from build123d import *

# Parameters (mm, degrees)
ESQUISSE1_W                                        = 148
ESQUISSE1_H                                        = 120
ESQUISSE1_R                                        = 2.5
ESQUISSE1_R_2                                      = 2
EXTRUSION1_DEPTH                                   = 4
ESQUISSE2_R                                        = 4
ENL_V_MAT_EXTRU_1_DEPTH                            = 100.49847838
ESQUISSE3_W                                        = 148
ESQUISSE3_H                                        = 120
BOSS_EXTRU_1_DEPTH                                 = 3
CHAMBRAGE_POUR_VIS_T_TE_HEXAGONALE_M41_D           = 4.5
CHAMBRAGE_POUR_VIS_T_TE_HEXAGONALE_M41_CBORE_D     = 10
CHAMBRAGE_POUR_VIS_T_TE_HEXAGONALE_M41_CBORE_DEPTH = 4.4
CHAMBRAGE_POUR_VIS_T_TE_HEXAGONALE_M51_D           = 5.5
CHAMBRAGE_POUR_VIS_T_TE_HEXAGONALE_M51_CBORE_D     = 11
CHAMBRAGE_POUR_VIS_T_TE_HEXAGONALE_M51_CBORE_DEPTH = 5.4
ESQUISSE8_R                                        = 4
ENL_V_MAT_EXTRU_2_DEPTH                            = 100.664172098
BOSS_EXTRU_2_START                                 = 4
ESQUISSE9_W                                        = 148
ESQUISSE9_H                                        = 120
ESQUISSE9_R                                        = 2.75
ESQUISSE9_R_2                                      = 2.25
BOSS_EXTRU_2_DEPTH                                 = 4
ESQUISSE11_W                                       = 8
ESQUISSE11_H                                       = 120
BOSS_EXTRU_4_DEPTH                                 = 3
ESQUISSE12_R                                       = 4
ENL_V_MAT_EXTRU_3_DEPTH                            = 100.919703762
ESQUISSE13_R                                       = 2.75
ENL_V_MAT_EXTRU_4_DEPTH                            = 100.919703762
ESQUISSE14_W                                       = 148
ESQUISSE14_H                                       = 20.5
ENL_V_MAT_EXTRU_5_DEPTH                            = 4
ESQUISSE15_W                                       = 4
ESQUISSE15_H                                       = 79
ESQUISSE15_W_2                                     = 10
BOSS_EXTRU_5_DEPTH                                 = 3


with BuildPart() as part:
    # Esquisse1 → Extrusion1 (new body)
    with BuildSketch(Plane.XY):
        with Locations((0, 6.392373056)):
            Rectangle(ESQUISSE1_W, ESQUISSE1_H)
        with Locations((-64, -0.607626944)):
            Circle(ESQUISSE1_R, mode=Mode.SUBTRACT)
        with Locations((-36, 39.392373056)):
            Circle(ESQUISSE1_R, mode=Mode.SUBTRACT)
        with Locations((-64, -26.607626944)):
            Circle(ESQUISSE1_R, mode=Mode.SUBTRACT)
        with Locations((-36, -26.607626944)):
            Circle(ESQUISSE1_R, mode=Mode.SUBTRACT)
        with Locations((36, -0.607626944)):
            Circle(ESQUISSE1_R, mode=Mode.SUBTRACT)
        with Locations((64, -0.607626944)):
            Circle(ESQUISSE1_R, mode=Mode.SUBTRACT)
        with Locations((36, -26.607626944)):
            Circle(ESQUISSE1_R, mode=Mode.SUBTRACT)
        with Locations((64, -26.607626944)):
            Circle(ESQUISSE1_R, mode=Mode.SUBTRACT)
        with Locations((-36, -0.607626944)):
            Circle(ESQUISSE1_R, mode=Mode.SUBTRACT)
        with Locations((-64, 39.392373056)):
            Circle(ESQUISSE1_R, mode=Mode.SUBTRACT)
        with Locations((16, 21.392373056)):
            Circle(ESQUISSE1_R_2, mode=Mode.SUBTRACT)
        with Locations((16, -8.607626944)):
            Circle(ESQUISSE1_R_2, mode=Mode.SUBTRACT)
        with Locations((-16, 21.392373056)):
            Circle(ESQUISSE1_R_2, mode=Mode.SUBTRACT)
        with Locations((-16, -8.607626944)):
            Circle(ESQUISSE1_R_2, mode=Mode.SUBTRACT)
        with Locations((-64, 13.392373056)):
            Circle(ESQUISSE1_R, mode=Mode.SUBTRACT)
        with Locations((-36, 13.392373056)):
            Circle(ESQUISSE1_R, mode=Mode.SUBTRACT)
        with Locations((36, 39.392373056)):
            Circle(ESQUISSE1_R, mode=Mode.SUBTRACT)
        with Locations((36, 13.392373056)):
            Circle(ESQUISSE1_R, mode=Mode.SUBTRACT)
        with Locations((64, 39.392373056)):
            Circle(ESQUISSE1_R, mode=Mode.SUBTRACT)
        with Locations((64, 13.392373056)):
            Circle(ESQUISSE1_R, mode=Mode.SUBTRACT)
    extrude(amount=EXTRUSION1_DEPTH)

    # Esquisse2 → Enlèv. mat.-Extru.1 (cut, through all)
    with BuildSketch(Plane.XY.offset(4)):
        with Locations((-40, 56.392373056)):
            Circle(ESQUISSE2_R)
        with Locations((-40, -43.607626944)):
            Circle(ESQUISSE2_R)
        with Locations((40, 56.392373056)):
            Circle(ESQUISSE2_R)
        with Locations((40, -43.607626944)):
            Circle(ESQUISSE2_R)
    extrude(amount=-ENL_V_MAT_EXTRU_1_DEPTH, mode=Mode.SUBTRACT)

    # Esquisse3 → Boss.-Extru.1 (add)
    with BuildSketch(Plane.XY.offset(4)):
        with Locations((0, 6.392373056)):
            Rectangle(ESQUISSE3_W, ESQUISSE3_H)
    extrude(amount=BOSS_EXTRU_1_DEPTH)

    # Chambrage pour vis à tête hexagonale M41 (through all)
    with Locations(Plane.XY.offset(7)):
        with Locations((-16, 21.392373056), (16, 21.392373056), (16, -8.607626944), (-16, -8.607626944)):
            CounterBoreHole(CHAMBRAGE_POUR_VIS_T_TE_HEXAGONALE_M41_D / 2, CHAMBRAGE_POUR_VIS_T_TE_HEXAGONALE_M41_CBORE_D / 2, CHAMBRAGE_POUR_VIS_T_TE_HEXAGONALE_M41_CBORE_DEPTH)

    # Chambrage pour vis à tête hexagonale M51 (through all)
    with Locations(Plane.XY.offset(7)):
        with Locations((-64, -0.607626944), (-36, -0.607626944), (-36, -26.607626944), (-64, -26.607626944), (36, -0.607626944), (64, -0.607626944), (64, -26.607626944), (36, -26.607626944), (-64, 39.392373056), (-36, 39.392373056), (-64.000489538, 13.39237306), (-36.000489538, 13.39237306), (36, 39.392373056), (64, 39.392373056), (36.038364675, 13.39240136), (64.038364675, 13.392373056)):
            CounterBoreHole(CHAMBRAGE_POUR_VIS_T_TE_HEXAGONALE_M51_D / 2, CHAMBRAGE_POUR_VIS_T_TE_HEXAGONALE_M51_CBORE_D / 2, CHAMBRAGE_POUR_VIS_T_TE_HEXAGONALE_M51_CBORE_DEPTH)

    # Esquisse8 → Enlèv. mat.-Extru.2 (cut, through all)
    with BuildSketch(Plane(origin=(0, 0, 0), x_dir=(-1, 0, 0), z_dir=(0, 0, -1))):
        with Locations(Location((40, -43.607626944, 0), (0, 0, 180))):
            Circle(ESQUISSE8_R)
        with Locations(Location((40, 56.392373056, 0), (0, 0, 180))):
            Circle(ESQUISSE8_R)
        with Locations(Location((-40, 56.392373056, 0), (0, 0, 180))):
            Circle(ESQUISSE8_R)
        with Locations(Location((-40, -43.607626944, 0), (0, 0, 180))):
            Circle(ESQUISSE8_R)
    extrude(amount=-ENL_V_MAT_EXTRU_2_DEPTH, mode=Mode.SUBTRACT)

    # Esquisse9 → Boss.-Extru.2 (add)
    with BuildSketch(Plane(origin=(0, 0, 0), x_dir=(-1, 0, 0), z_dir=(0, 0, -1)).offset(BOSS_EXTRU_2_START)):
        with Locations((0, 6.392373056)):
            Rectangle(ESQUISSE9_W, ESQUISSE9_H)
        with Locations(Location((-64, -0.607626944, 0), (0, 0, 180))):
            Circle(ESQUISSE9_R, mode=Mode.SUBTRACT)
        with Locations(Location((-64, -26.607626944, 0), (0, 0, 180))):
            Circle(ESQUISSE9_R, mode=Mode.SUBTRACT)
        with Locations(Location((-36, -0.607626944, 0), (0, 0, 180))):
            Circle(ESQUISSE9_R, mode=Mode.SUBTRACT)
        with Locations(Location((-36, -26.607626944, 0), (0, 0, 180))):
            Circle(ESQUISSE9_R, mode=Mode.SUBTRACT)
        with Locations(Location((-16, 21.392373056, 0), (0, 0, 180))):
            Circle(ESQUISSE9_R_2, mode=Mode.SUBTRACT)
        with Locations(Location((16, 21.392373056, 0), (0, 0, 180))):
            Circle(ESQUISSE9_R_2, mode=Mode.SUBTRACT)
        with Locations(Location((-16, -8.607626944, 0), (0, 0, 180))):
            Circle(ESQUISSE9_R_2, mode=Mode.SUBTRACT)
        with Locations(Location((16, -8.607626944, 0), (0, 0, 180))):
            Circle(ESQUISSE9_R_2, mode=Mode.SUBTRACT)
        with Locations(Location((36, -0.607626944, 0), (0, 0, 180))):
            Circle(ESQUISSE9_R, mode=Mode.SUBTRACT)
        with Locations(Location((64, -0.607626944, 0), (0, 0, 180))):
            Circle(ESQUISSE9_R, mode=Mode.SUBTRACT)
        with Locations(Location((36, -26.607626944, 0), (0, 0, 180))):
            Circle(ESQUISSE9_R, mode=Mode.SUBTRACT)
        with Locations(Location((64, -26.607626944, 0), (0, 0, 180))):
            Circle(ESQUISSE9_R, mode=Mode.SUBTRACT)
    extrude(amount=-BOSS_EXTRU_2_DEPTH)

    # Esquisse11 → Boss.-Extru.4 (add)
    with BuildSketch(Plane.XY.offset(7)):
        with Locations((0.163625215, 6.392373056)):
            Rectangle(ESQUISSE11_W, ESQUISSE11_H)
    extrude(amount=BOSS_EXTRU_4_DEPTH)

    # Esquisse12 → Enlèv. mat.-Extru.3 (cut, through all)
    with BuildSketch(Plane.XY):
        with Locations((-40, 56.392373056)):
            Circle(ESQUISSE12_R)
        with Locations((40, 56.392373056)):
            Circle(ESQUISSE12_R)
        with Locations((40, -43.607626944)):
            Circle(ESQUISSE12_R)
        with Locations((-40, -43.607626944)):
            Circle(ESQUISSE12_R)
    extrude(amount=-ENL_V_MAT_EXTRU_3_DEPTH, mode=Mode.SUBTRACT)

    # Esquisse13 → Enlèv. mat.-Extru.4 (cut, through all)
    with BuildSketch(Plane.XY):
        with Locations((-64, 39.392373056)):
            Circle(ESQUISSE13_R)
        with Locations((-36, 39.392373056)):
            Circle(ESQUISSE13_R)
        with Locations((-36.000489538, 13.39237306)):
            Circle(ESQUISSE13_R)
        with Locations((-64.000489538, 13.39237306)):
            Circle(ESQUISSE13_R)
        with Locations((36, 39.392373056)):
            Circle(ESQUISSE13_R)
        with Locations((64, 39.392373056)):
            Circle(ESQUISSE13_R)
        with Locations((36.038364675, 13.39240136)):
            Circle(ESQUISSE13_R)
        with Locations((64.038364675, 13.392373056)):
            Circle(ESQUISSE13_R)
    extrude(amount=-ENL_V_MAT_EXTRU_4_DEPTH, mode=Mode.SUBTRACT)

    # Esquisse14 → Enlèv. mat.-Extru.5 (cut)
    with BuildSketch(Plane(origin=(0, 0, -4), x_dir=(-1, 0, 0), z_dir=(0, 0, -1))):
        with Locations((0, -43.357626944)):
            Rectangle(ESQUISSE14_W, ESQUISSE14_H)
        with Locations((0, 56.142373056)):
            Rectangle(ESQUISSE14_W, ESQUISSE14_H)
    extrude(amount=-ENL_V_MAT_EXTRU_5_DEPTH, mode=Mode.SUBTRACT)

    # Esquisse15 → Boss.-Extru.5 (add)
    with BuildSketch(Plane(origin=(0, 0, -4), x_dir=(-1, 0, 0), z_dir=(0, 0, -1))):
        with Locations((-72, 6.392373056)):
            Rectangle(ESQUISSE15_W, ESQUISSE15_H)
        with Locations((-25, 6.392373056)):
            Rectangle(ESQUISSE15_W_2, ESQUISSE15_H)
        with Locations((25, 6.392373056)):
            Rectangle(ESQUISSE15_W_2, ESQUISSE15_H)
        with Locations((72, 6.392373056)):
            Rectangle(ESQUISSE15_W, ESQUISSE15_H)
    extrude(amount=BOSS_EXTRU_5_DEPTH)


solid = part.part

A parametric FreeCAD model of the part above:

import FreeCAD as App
import Part
import Sketcher
from FreeCAD import Vector
Q = App.Units.Quantity

doc = App.newDocument("Part")
body = doc.addObject("PartDesign::Body", "Body")

sketch1 = doc.addObject("Sketcher::SketchObject", "Sketch")
body.addObject(sketch1)
sketch1.AttachmentSupport = (doc.XY_Plane, [""])
sketch1.MapMode = "FlatFace"
sketch1.addGeometry(Part.LineSegment(Vector(-74, 66.4, 0), Vector(-74, -53.6, 0)), False)
sketch1.addGeometry(Part.LineSegment(Vector(-74, -53.6, 0), Vector(74, -53.6, 0)), False)
sketch1.addGeometry(Part.LineSegment(Vector(74, -53.6, 0), Vector(74, 66.4, 0)), False)
sketch1.addGeometry(Part.LineSegment(Vector(74, 66.4, 0), Vector(-74, 66.4, 0)), False)
sketch1.addGeometry(Part.Circle(Vector(-64, -26.6, 0), Vector(0, 0, 1), 2.5), False)
sketch1.addGeometry(Part.Circle(Vector(-36, -26.6, 0), Vector(0, 0, 1), 2.5), False)
sketch1.addGeometry(Part.Circle(Vector(-64, -0.6, 0), Vector(0, 0, 1), 2.5), False)
sketch1.addGeometry(Part.Circle(Vector(-36, -0.6, 0), Vector(0, 0, 1), 2.5), False)
sketch1.addGeometry(Part.Circle(Vector(-16, -8.6, 0), Vector(0, 0, 1), 2), False)
sketch1.addGeometry(Part.Circle(Vector(36, -26.6, 0), Vector(0, 0, 1), 2.5), False)
sketch1.addGeometry(Part.Circle(Vector(64, -26.6, 0), Vector(0, 0, 1), 2.5), False)
sketch1.addGeometry(Part.Circle(Vector(16, -8.6, 0), Vector(0, 0, 1), 2), False)
sketch1.addGeometry(Part.Circle(Vector(36, -0.6, 0), Vector(0, 0, 1), 2.5), False)
sketch1.addGeometry(Part.Circle(Vector(64, -0.6, 0), Vector(0, 0, 1), 2.5), False)
sketch1.addGeometry(Part.Circle(Vector(-64, 13.4, 0), Vector(0, 0, 1), 2.5), False)
sketch1.addGeometry(Part.Circle(Vector(-36, 13.4, 0), Vector(0, 0, 1), 2.5), False)
sketch1.addGeometry(Part.Circle(Vector(-16, 21.4, 0), Vector(0, 0, 1), 2), False)
sketch1.addGeometry(Part.Circle(Vector(-64, 39.4, 0), Vector(0, 0, 1), 2.5), False)
sketch1.addGeometry(Part.Circle(Vector(-36, 39.4, 0), Vector(0, 0, 1), 2.5), False)
sketch1.addGeometry(Part.Circle(Vector(16, 21.4, 0), Vector(0, 0, 1), 2), False)
sketch1.addGeometry(Part.Circle(Vector(36, 13.4, 0), Vector(0, 0, 1), 2.5), False)
sketch1.addGeometry(Part.Circle(Vector(64, 13.4, 0), Vector(0, 0, 1), 2.5), False)
sketch1.addGeometry(Part.Circle(Vector(36, 39.4, 0), Vector(0, 0, 1), 2.5), False)
sketch1.addGeometry(Part.Circle(Vector(64, 39.4, 0), Vector(0, 0, 1), 2.5), False)
sketch1.addConstraint(Sketcher.Constraint("Coincident", 0, 2, 1, 1))
sketch1.addConstraint(Sketcher.Constraint("Coincident", 1, 2, 2, 1))
sketch1.addConstraint(Sketcher.Constraint("Coincident", 2, 2, 3, 1))
sketch1.addConstraint(Sketcher.Constraint("Coincident", 3, 2, 0, 1))
sketch1.addConstraint(Sketcher.Constraint("Vertical", 0))
sketch1.addConstraint(Sketcher.Constraint("Horizontal", 1))
sketch1.addConstraint(Sketcher.Constraint("Vertical", 2))
sketch1.addConstraint(Sketcher.Constraint("Horizontal", 3))
sketch1.addConstraint(Sketcher.Constraint("Equal", 4, 5))
sketch1.addConstraint(Sketcher.Constraint("Equal", 5, 6))
sketch1.addConstraint(Sketcher.Constraint("Equal", 6, 7))
sketch1.addConstraint(Sketcher.Constraint("Equal", 7, 9))
sketch1.addConstraint(Sketcher.Constraint("Equal", 9, 10))
sketch1.addConstraint(Sketcher.Constraint("Equal", 8, 11))
sketch1.addConstraint(Sketcher.Constraint("Equal", 10, 12))
sketch1.addConstraint(Sketcher.Constraint("Equal", 12, 13))
sketch1.addConstraint(Sketcher.Constraint("Equal", 13, 14))
sketch1.addConstraint(Sketcher.Constraint("Equal", 14, 15))
sketch1.addConstraint(Sketcher.Constraint("Equal", 11, 16))
sketch1.addConstraint(Sketcher.Constraint("Equal", 15, 17))
sketch1.addConstraint(Sketcher.Constraint("Equal", 17, 18))
sketch1.addConstraint(Sketcher.Constraint("Equal", 16, 19))
sketch1.addConstraint(Sketcher.Constraint("Equal", 18, 20))
sketch1.addConstraint(Sketcher.Constraint("Equal", 20, 21))
sketch1.addConstraint(Sketcher.Constraint("Equal", 21, 22))
sketch1.addConstraint(Sketcher.Constraint("Equal", 22, 23))
sketch1.addConstraint(Sketcher.Constraint("Symmetric", 5, 3, 9, 3, -2))
sketch1.addConstraint(Sketcher.Constraint("Symmetric", 4, 3, 10, 3, -2))
sketch1.addConstraint(Sketcher.Constraint("Symmetric", 8, 3, 11, 3, -2))
sketch1.addConstraint(Sketcher.Constraint("Symmetric", 7, 3, 12, 3, -2))
sketch1.addConstraint(Sketcher.Constraint("Symmetric", 6, 3, 13, 3, -2))
sketch1.addConstraint(Sketcher.Constraint("Symmetric", 16, 3, 19, 3, -2))
sketch1.addConstraint(Sketcher.Constraint("Symmetric", 15, 3, 20, 3, -2))
sketch1.addConstraint(Sketcher.Constraint("Symmetric", 14, 3, 21, 3, -2))
sketch1.addConstraint(Sketcher.Constraint("Symmetric", 18, 3, 22, 3, -2))
sketch1.addConstraint(Sketcher.Constraint("Symmetric", 17, 3, 23, 3, -2))
sketch1.addConstraint(Sketcher.Constraint("Horizontal", 4, 3, 5, 3))
sketch1.addConstraint(Sketcher.Constraint("Horizontal", 6, 3, 7, 3))
sketch1.addConstraint(Sketcher.Constraint("Horizontal", 14, 3, 15, 3))
sketch1.addConstraint(Sketcher.Constraint("Horizontal", 17, 3, 18, 3))
sketch1.addConstraint(Sketcher.Constraint("Vertical", 4, 3, 6, 3))
sketch1.addConstraint(Sketcher.Constraint("Vertical", 5, 3, 7, 3))
sketch1.addConstraint(Sketcher.Constraint("Vertical", 6, 3, 14, 3))
sketch1.addConstraint(Sketcher.Constraint("Vertical", 7, 3, 15, 3))
sketch1.addConstraint(Sketcher.Constraint("Vertical", 8, 3, 16, 3))
sketch1.addConstraint(Sketcher.Constraint("Vertical", 14, 3, 17, 3))
sketch1.addConstraint(Sketcher.Constraint("Vertical", 15, 3, 18, 3))
sketch1.addConstraint(Sketcher.Constraint("Diameter", 4, Q("5 mm")))
sketch1.addConstraint(Sketcher.Constraint("Diameter", 8, Q("4 mm")))
sketch1.addConstraint(Sketcher.Constraint("DistanceX", 1, 1, 1, 2, Q("148 mm")))
sketch1.addConstraint(Sketcher.Constraint("DistanceY", 0, 2, 0, 1, Q("120 mm")))
sketch1.addConstraint(Sketcher.Constraint("DistanceX", 4, 3, -1, 1, Q("64 mm")))
sketch1.addConstraint(Sketcher.Constraint("DistanceX", 5, 3, -1, 1, Q("36 mm")))
sketch1.addConstraint(Sketcher.Constraint("DistanceX", 8, 3, -1, 1, Q("16 mm")))
sketch1.addConstraint(Sketcher.Constraint("DistanceX", 0, 2, -1, 1, Q("74 mm")))
sketch1.addConstraint(Sketcher.Constraint("DistanceY", 4, 3, 6, 3, Q("26 mm")))
sketch1.addConstraint(Sketcher.Constraint("DistanceY", 8, 3, 7, 3, Q("8 mm")))
sketch1.addConstraint(Sketcher.Constraint("DistanceY", 6, 3, 14, 3, Q("14 mm")))
sketch1.addConstraint(Sketcher.Constraint("DistanceY", 15, 3, 16, 3, Q("8 mm")))
sketch1.addConstraint(Sketcher.Constraint("DistanceY", 14, 3, 17, 3, Q("26 mm")))
sketch1.addConstraint(Sketcher.Constraint("DistanceY", 0, 2, 4, 3, Q("27 mm")))
sketch1.addConstraint(Sketcher.Constraint("DistanceY", 4, 3, -1, 1, Q("26.607627 mm")))
pad1 = doc.addObject("PartDesign::Pad", "Pad")
body.addObject(pad1)
pad1.Profile = sketch1
pad1.Length = 4

sketch2 = doc.addObject("Sketcher::SketchObject", "Sketch001")
body.addObject(sketch2)
sketch2.AttachmentSupport = (doc.XY_Plane, [""])
sketch2.MapMode = "FlatFace"
sketch2.AttachmentOffset = App.Placement(Vector(0, 0, 4), App.Rotation())
sketch2.addGeometry(Part.Circle(Vector(-40, 56.4, 0), Vector(0, 0, 1), 4), False)
sketch2.addGeometry(Part.Circle(Vector(-40, -43.6, 0), Vector(0, 0, 1), 4), False)
sketch2.addGeometry(Part.Circle(Vector(40, 56.4, 0), Vector(0, 0, 1), 4), False)
sketch2.addGeometry(Part.Circle(Vector(40, -43.6, 0), Vector(0, 0, 1), 4), False)
sketch2.addConstraint(Sketcher.Constraint("Equal", 0, 1))
sketch2.addConstraint(Sketcher.Constraint("Equal", 1, 2))
sketch2.addConstraint(Sketcher.Constraint("Equal", 2, 3))
sketch2.addConstraint(Sketcher.Constraint("Symmetric", 0, 3, 2, 3, -2))
sketch2.addConstraint(Sketcher.Constraint("Symmetric", 1, 3, 3, 3, -2))
sketch2.addConstraint(Sketcher.Constraint("Vertical", 0, 3, 1, 3))
sketch2.addConstraint(Sketcher.Constraint("Diameter", 0, Q("8 mm")))
sketch2.addConstraint(Sketcher.Constraint("DistanceX", 0, 3, -1, 1, Q("40 mm")))
sketch2.addConstraint(Sketcher.Constraint("DistanceY", 1, 3, 0, 3, Q("100 mm")))
sketch2.addConstraint(Sketcher.Constraint("DistanceY", -1, 1, 0, 3, Q("56.392373 mm")))
pocket1 = doc.addObject("PartDesign::Pocket", "Pocket")
body.addObject(pocket1)
pocket1.Profile = sketch2
pocket1.Type = "ThroughAll"

sketch3 = doc.addObject("Sketcher::SketchObject", "Sketch002")
body.addObject(sketch3)
sketch3.AttachmentSupport = (doc.XY_Plane, [""])
sketch3.MapMode = "FlatFace"
sketch3.AttachmentOffset = App.Placement(Vector(0, 0, 4), App.Rotation())
sketch3.addGeometry(Part.LineSegment(Vector(-74, 66, 0), Vector(-74, -54, 0)), False)
sketch3.addGeometry(Part.LineSegment(Vector(-74, -54, 0), Vector(74, -54, 0)), False)
sketch3.addGeometry(Part.LineSegment(Vector(74, -54, 0), Vector(74, 66, 0)), False)
sketch3.addGeometry(Part.LineSegment(Vector(74, 66, 0), Vector(-74, 66, 0)), False)
sketch3.addConstraint(Sketcher.Constraint("Coincident", 0, 2, 1, 1))
sketch3.addConstraint(Sketcher.Constraint("Coincident", 1, 2, 2, 1))
sketch3.addConstraint(Sketcher.Constraint("Coincident", 2, 2, 3, 1))
sketch3.addConstraint(Sketcher.Constraint("Coincident", 3, 2, 0, 1))
sketch3.addConstraint(Sketcher.Constraint("Vertical", 0))
sketch3.addConstraint(Sketcher.Constraint("Horizontal", 1))
sketch3.addConstraint(Sketcher.Constraint("Vertical", 2))
sketch3.addConstraint(Sketcher.Constraint("Horizontal", 3))
sketch3.addConstraint(Sketcher.Constraint("DistanceX", 1, 1, 1, 2, Q("148 mm")))
sketch3.addConstraint(Sketcher.Constraint("DistanceY", 0, 2, 0, 1, Q("120 mm")))
sketch3.addConstraint(Sketcher.Constraint("DistanceX", 0, 2, -1, 1, Q("74 mm")))
sketch3.addConstraint(Sketcher.Constraint("DistanceY", 0, 2, -1, 1, Q("53.607627 mm")))
pad2 = doc.addObject("PartDesign::Pad", "Pad001")
body.addObject(pad2)
pad2.Profile = sketch3
pad2.Length = 3

sketch4 = doc.addObject("Sketcher::SketchObject", "Sketch003")
body.addObject(sketch4)
sketch4.AttachmentSupport = (doc.XY_Plane, [""])
sketch4.MapMode = "FlatFace"
sketch4.AttachmentOffset = App.Placement(Vector(0, 0, 7), App.Rotation())
sketch4.addGeometry(Part.Circle(Vector(-16, 21.4, 0), Vector(0, 0, 1), 2.2), False)
sketch4.addGeometry(Part.Circle(Vector(16, 21.4, 0), Vector(0, 0, 1), 2.2), False)
sketch4.addGeometry(Part.Circle(Vector(16, -8.6, 0), Vector(0, 0, 1), 2.2), False)
sketch4.addGeometry(Part.Circle(Vector(-16, -8.6, 0), Vector(0, 0, 1), 2.2), False)
sketch4.addConstraint(Sketcher.Constraint("Equal", 0, 1))
sketch4.addConstraint(Sketcher.Constraint("Equal", 1, 2))
sketch4.addConstraint(Sketcher.Constraint("Equal", 2, 3))
sketch4.addConstraint(Sketcher.Constraint("Symmetric", 0, 3, 1, 3, -2))
sketch4.addConstraint(Sketcher.Constraint("Symmetric", 2, 3, 3, 3, -2))
sketch4.addConstraint(Sketcher.Constraint("Vertical", 1, 3, 2, 3))
sketch4.addConstraint(Sketcher.Constraint("Diameter", 0, Q("4.5 mm")))
sketch4.addConstraint(Sketcher.Constraint("DistanceX", 0, 3, -1, 1, Q("16 mm")))
sketch4.addConstraint(Sketcher.Constraint("DistanceY", 2, 3, 1, 3, Q("30 mm")))
sketch4.addConstraint(Sketcher.Constraint("DistanceY", -1, 1, 0, 3, Q("21.392373 mm")))
doc.recompute()
hole = doc.addObject("PartDesign::Hole", "Hole")
body.addObject(hole)
hole.Profile = sketch4
hole.ThreadType = "None"
hole.Diameter = 4.5
hole.DepthType = "ThroughAll"
hole.HoleCutType = "Counterbore"
hole.HoleCutDiameter = 10
hole.HoleCutDepth = 4.4

sketch5 = doc.addObject("Sketcher::SketchObject", "Sketch004")
body.addObject(sketch5)
sketch5.AttachmentSupport = (doc.XY_Plane, [""])
sketch5.MapMode = "FlatFace"
sketch5.AttachmentOffset = App.Placement(Vector(0, 0, 7), App.Rotation())
sketch5.addGeometry(Part.Circle(Vector(-64, -0.6, 0), Vector(0, 0, 1), 2.8), False)
sketch5.addGeometry(Part.Circle(Vector(-36, -0.6, 0), Vector(0, 0, 1), 2.8), False)
sketch5.addGeometry(Part.Circle(Vector(-36, -26.6, 0), Vector(0, 0, 1), 2.8), False)
sketch5.addGeometry(Part.Circle(Vector(-64, -26.6, 0), Vector(0, 0, 1), 2.8), False)
sketch5.addGeometry(Part.Circle(Vector(36, -0.6, 0), Vector(0, 0, 1), 2.8), False)
sketch5.addGeometry(Part.Circle(Vector(64, -0.6, 0), Vector(0, 0, 1), 2.8), False)
sketch5.addGeometry(Part.Circle(Vector(64, -26.6, 0), Vector(0, 0, 1), 2.8), False)
sketch5.addGeometry(Part.Circle(Vector(36, -26.6, 0), Vector(0, 0, 1), 2.8), False)
sketch5.addGeometry(Part.Circle(Vector(-64, 39.4, 0), Vector(0, 0, 1), 2.8), False)
sketch5.addGeometry(Part.Circle(Vector(-36, 39.4, 0), Vector(0, 0, 1), 2.8), False)
sketch5.addGeometry(Part.Circle(Vector(-64, 13.4, 0), Vector(0, 0, 1), 2.8), False)
sketch5.addGeometry(Part.Circle(Vector(-36, 13.4, 0), Vector(0, 0, 1), 2.8), False)
sketch5.addGeometry(Part.Circle(Vector(36, 39.4, 0), Vector(0, 0, 1), 2.8), False)
sketch5.addGeometry(Part.Circle(Vector(64, 39.4, 0), Vector(0, 0, 1), 2.8), False)
sketch5.addGeometry(Part.Circle(Vector(36, 13.4, 0), Vector(0, 0, 1), 2.8), False)
sketch5.addGeometry(Part.Circle(Vector(64, 13.4, 0), Vector(0, 0, 1), 2.8), False)
sketch5.addConstraint(Sketcher.Constraint("Equal", 0, 1))
sketch5.addConstraint(Sketcher.Constraint("Equal", 1, 2))
sketch5.addConstraint(Sketcher.Constraint("Equal", 2, 3))
sketch5.addConstraint(Sketcher.Constraint("Equal", 3, 4))
sketch5.addConstraint(Sketcher.Constraint("Equal", 4, 5))
sketch5.addConstraint(Sketcher.Constraint("Equal", 5, 6))
sketch5.addConstraint(Sketcher.Constraint("Equal", 6, 7))
sketch5.addConstraint(Sketcher.Constraint("Equal", 7, 8))
sketch5.addConstraint(Sketcher.Constraint("Equal", 8, 9))
sketch5.addConstraint(Sketcher.Constraint("Equal", 9, 10))
sketch5.addConstraint(Sketcher.Constraint("Equal", 10, 11))
sketch5.addConstraint(Sketcher.Constraint("Equal", 11, 12))
sketch5.addConstraint(Sketcher.Constraint("Equal", 12, 13))
sketch5.addConstraint(Sketcher.Constraint("Equal", 13, 14))
sketch5.addConstraint(Sketcher.Constraint("Equal", 14, 15))
sketch5.addConstraint(Sketcher.Constraint("Symmetric", 1, 3, 4, 3, -2))
sketch5.addConstraint(Sketcher.Constraint("Symmetric", 0, 3, 5, 3, -2))
sketch5.addConstraint(Sketcher.Constraint("Symmetric", 3, 3, 6, 3, -2))
sketch5.addConstraint(Sketcher.Constraint("Symmetric", 2, 3, 7, 3, -2))
sketch5.addConstraint(Sketcher.Constraint("Symmetric", 9, 3, 12, 3, -2))
sketch5.addConstraint(Sketcher.Constraint("Symmetric", 8, 3, 13, 3, -2))
sketch5.addConstraint(Sketcher.Constraint("Horizontal", 0, 3, 1, 3))
sketch5.addConstraint(Sketcher.Constraint("Horizontal", 2, 3, 3, 3))
sketch5.addConstraint(Sketcher.Constraint("Horizontal", 8, 3, 9, 3))
sketch5.addConstraint(Sketcher.Constraint("Horizontal", 10, 3, 11, 3))
sketch5.addConstraint(Sketcher.Constraint("Horizontal", 11, 3, 15, 3))
sketch5.addConstraint(Sketcher.Constraint("Vertical", 1, 3, 2, 3))
sketch5.addConstraint(Sketcher.Constraint("Vertical", 0, 3, 3, 3))
sketch5.addConstraint(Sketcher.Constraint("Vertical", 3, 3, 8, 3))
sketch5.addConstraint(Sketcher.Constraint("Vertical", 2, 3, 9, 3))
sketch5.addConstraint(Sketcher.Constraint("Diameter", 0, Q("5.5 mm")))
sketch5.addConstraint(Sketcher.Constraint("DistanceX", 0, 3, -1, 1, Q("64 mm")))
sketch5.addConstraint(Sketcher.Constraint("DistanceX", 1, 3, -1, 1, Q("36 mm")))
sketch5.addConstraint(Sketcher.Constraint("DistanceY", 2, 3, 1, 3, Q("26 mm")))
sketch5.addConstraint(Sketcher.Constraint("DistanceY", 0, 3, 8, 3, Q("40 mm")))
sketch5.addConstraint(Sketcher.Constraint("DistanceY", 0, 3, 10, 3, Q("14 mm")))
sketch5.addConstraint(Sketcher.Constraint("DistanceX", 10, 3, 11, 3, Q("28 mm")))
sketch5.addConstraint(Sketcher.Constraint("DistanceX", 14, 3, 15, 3, Q("28 mm")))
sketch5.addConstraint(Sketcher.Constraint("DistanceY", -1, 1, 14, 3, Q("13.392401 mm")))
sketch5.addConstraint(Sketcher.Constraint("DistanceX", 10, 3, -1, 1, Q("64.00049 mm")))
sketch5.addConstraint(Sketcher.Constraint("DistanceY", 4, 3, 14, 3, Q("14.000028 mm")))
sketch5.addConstraint(Sketcher.Constraint("DistanceX", -1, 1, 14, 3, Q("36.038365 mm")))
doc.recompute()
hole2 = doc.addObject("PartDesign::Hole", "Hole001")
body.addObject(hole2)
hole2.Profile = sketch5
hole2.ThreadType = "None"
hole2.Diameter = 5.5
hole2.DepthType = "ThroughAll"
hole2.HoleCutType = "Counterbore"
hole2.HoleCutDiameter = 11
hole2.HoleCutDepth = 5.4

sketch6 = doc.addObject("Sketcher::SketchObject", "Sketch005")
body.addObject(sketch6)
sketch6.AttachmentSupport = (doc.XY_Plane, [""])
sketch6.MapMode = "FlatFace"
sketch6.addGeometry(Part.Circle(Vector(-40, -43.6, 0), Vector(0, 0, 1), 4), False)
sketch6.addGeometry(Part.Circle(Vector(-40, 56.4, 0), Vector(0, 0, 1), 4), False)
sketch6.addGeometry(Part.Circle(Vector(40, 56.4, 0), Vector(0, 0, 1), 4), False)
sketch6.addGeometry(Part.Circle(Vector(40, -43.6, 0), Vector(0, 0, 1), 4), False)
sketch6.addConstraint(Sketcher.Constraint("Equal", 0, 1))
sketch6.addConstraint(Sketcher.Constraint("Equal", 1, 2))
sketch6.addConstraint(Sketcher.Constraint("Equal", 2, 3))
sketch6.addConstraint(Sketcher.Constraint("Symmetric", 1, 3, 2, 3, -2))
sketch6.addConstraint(Sketcher.Constraint("Symmetric", 0, 3, 3, 3, -2))
sketch6.addConstraint(Sketcher.Constraint("Vertical", 0, 3, 1, 3))
sketch6.addConstraint(Sketcher.Constraint("Diameter", 0, Q("8 mm")))
sketch6.addConstraint(Sketcher.Constraint("DistanceX", 0, 3, -1, 1, Q("40 mm")))
sketch6.addConstraint(Sketcher.Constraint("DistanceY", 0, 3, 1, 3, Q("100 mm")))
sketch6.addConstraint(Sketcher.Constraint("DistanceY", 0, 3, -1, 1, Q("43.607627 mm")))
pocket2 = doc.addObject("PartDesign::Pocket", "Pocket001")
body.addObject(pocket2)
pocket2.Profile = sketch6
pocket2.Type = "ThroughAll"
pocket2.Reversed = True

sketch7 = doc.addObject("Sketcher::SketchObject", "Sketch006")
body.addObject(sketch7)
sketch7.AttachmentSupport = (doc.XY_Plane, [""])
sketch7.MapMode = "FlatFace"
sketch7.AttachmentOffset = App.Placement(Vector(0, 0, -4), App.Rotation())
sketch7.addGeometry(Part.LineSegment(Vector(74, 66.4, 0), Vector(74, -53.6, 0)), False)
sketch7.addGeometry(Part.LineSegment(Vector(74, -53.6, 0), Vector(-74, -53.6, 0)), False)
sketch7.addGeometry(Part.LineSegment(Vector(-74, -53.6, 0), Vector(-74, 66.4, 0)), False)
sketch7.addGeometry(Part.LineSegment(Vector(-74, 66.4, 0), Vector(74, 66.4, 0)), False)
sketch7.addGeometry(Part.Circle(Vector(64, -26.6, 0), Vector(0, 0, 1), 2.8), False)
sketch7.addGeometry(Part.Circle(Vector(36, -26.6, 0), Vector(0, 0, 1), 2.8), False)
sketch7.addGeometry(Part.Circle(Vector(16, -8.6, 0), Vector(0, 0, 1), 2.2), False)
sketch7.addGeometry(Part.Circle(Vector(-36, -26.6, 0), Vector(0, 0, 1), 2.8), False)
sketch7.addGeometry(Part.Circle(Vector(-64, -26.6, 0), Vector(0, 0, 1), 2.8), False)
sketch7.addGeometry(Part.Circle(Vector(-16, -8.6, 0), Vector(0, 0, 1), 2.2), False)
sketch7.addGeometry(Part.Circle(Vector(64, -0.6, 0), Vector(0, 0, 1), 2.8), False)
sketch7.addGeometry(Part.Circle(Vector(36, -0.6, 0), Vector(0, 0, 1), 2.8), False)
sketch7.addGeometry(Part.Circle(Vector(16, 21.4, 0), Vector(0, 0, 1), 2.2), False)
sketch7.addGeometry(Part.Circle(Vector(-36, -0.6, 0), Vector(0, 0, 1), 2.8), False)
sketch7.addGeometry(Part.Circle(Vector(-64, -0.6, 0), Vector(0, 0, 1), 2.8), False)
sketch7.addGeometry(Part.Circle(Vector(-16, 21.4, 0), Vector(0, 0, 1), 2.2), False)
sketch7.addConstraint(Sketcher.Constraint("Coincident", 0, 2, 1, 1))
sketch7.addConstraint(Sketcher.Constraint("Coincident", 1, 2, 2, 1))
sketch7.addConstraint(Sketcher.Constraint("Coincident", 2, 2, 3, 1))
sketch7.addConstraint(Sketcher.Constraint("Coincident", 3, 2, 0, 1))
sketch7.addConstraint(Sketcher.Constraint("Vertical", 0))
sketch7.addConstraint(Sketcher.Constraint("Horizontal", 1))
sketch7.addConstraint(Sketcher.Constraint("Vertical", 2))
sketch7.addConstraint(Sketcher.Constraint("Horizontal", 3))
sketch7.addConstraint(Sketcher.Constraint("Equal", 4, 5))
sketch7.addConstraint(Sketcher.Constraint("Equal", 5, 7))
sketch7.addConstraint(Sketcher.Constraint("Equal", 7, 8))
sketch7.addConstraint(Sketcher.Constraint("Equal", 6, 9))
sketch7.addConstraint(Sketcher.Constraint("Equal", 8, 10))
sketch7.addConstraint(Sketcher.Constraint("Equal", 10, 11))
sketch7.addConstraint(Sketcher.Constraint("Equal", 9, 12))
sketch7.addConstraint(Sketcher.Constraint("Equal", 11, 13))
sketch7.addConstraint(Sketcher.Constraint("Equal", 13, 14))
sketch7.addConstraint(Sketcher.Constraint("Equal", 12, 15))
sketch7.addConstraint(Sketcher.Constraint("Symmetric", 5, 3, 7, 3, -2))
sketch7.addConstraint(Sketcher.Constraint("Symmetric", 4, 3, 8, 3, -2))
sketch7.addConstraint(Sketcher.Constraint("Symmetric", 6, 3, 9, 3, -2))
sketch7.addConstraint(Sketcher.Constraint("Symmetric", 11, 3, 13, 3, -2))
sketch7.addConstraint(Sketcher.Constraint("Symmetric", 10, 3, 14, 3, -2))
sketch7.addConstraint(Sketcher.Constraint("Symmetric", 12, 3, 15, 3, -2))
sketch7.addConstraint(Sketcher.Constraint("Horizontal", 4, 3, 5, 3))
sketch7.addConstraint(Sketcher.Constraint("Horizontal", 10, 3, 11, 3))
sketch7.addConstraint(Sketcher.Constraint("Vertical", 4, 3, 10, 3))
sketch7.addConstraint(Sketcher.Constraint("Vertical", 5, 3, 11, 3))
sketch7.addConstraint(Sketcher.Constraint("Vertical", 6, 3, 12, 3))
sketch7.addConstraint(Sketcher.Constraint("Diameter", 4, Q("5.5 mm")))
sketch7.addConstraint(Sketcher.Constraint("Diameter", 6, Q("4.5 mm")))
sketch7.addConstraint(Sketcher.Constraint("DistanceX", 1, 2, 1, 1, Q("148 mm")))
sketch7.addConstraint(Sketcher.Constraint("DistanceY", 0, 2, 0, 1, Q("120 mm")))
sketch7.addConstraint(Sketcher.Constraint("DistanceX", -1, 1, 4, 3, Q("64 mm")))
sketch7.addConstraint(Sketcher.Constraint("DistanceX", -1, 1, 5, 3, Q("36 mm")))
sketch7.addConstraint(Sketcher.Constraint("DistanceX", -1, 1, 6, 3, Q("16 mm")))
sketch7.addConstraint(Sketcher.Constraint("DistanceX", -1, 1, 0, 2, Q("74 mm")))
sketch7.addConstraint(Sketcher.Constraint("DistanceY", 5, 3, 6, 3, Q("18 mm")))
sketch7.addConstraint(Sketcher.Constraint("DistanceY", 4, 3, 10, 3, Q("26 mm")))
sketch7.addConstraint(Sketcher.Constraint("DistanceY", 11, 3, 12, 3, Q("22 mm")))
sketch7.addConstraint(Sketcher.Constraint("DistanceY", 0, 2, 4, 3, Q("27 mm")))
sketch7.addConstraint(Sketcher.Constraint("DistanceY", 4, 3, -1, 1, Q("26.607627 mm")))
pad3 = doc.addObject("PartDesign::Pad", "Pad002")
body.addObject(pad3)
pad3.Profile = sketch7
pad3.Length = 4

sketch8 = doc.addObject("Sketcher::SketchObject", "Sketch007")
body.addObject(sketch8)
sketch8.AttachmentSupport = (doc.XY_Plane, [""])
sketch8.MapMode = "FlatFace"
sketch8.AttachmentOffset = App.Placement(Vector(0, 0, 7), App.Rotation())
sketch8.addGeometry(Part.LineSegment(Vector(-4, 66, 0), Vector(-4, -54, 0)), False)
sketch8.addGeometry(Part.LineSegment(Vector(-4, -54, 0), Vector(4, -54, 0)), False)
sketch8.addGeometry(Part.LineSegment(Vector(4, -54, 0), Vector(4, 66, 0)), False)
sketch8.addGeometry(Part.LineSegment(Vector(4, 66, 0), Vector(-4, 66, 0)), False)
sketch8.addConstraint(Sketcher.Constraint("Coincident", 0, 2, 1, 1))
sketch8.addConstraint(Sketcher.Constraint("Coincident", 1, 2, 2, 1))
sketch8.addConstraint(Sketcher.Constraint("Coincident", 2, 2, 3, 1))
sketch8.addConstraint(Sketcher.Constraint("Coincident", 3, 2, 0, 1))
sketch8.addConstraint(Sketcher.Constraint("Vertical", 0))
sketch8.addConstraint(Sketcher.Constraint("Horizontal", 1))
sketch8.addConstraint(Sketcher.Constraint("Vertical", 2))
sketch8.addConstraint(Sketcher.Constraint("Horizontal", 3))
sketch8.addConstraint(Sketcher.Constraint("DistanceX", 1, 1, 1, 2, Q("8 mm")))
sketch8.addConstraint(Sketcher.Constraint("DistanceY", 0, 2, 0, 1, Q("120 mm")))
sketch8.addConstraint(Sketcher.Constraint("DistanceX", 0, 2, -1, 1, Q("3.836375 mm")))
sketch8.addConstraint(Sketcher.Constraint("DistanceY", 0, 2, -1, 1, Q("53.607627 mm")))
pad4 = doc.addObject("PartDesign::Pad", "Pad003")
body.addObject(pad4)
pad4.Profile = sketch8
pad4.Length = 3

sketch9 = doc.addObject("Sketcher::SketchObject", "Sketch008")
body.addObject(sketch9)
sketch9.AttachmentSupport = (doc.XY_Plane, [""])
sketch9.MapMode = "FlatFace"
sketch9.addGeometry(Part.Circle(Vector(-40, 56.4, 0), Vector(0, 0, 1), 4), False)
sketch9.addGeometry(Part.Circle(Vector(40, 56.4, 0), Vector(0, 0, 1), 4), False)
sketch9.addGeometry(Part.Circle(Vector(40, -43.6, 0), Vector(0, 0, 1), 4), False)
sketch9.addGeometry(Part.Circle(Vector(-40, -43.6, 0), Vector(0, 0, 1), 4), False)
sketch9.addConstraint(Sketcher.Constraint("Equal", 0, 1))
sketch9.addConstraint(Sketcher.Constraint("Equal", 1, 2))
sketch9.addConstraint(Sketcher.Constraint("Equal", 2, 3))
sketch9.addConstraint(Sketcher.Constraint("Symmetric", 0, 3, 1, 3, -2))
sketch9.addConstraint(Sketcher.Constraint("Symmetric", 2, 3, 3, 3, -2))
sketch9.addConstraint(Sketcher.Constraint("Vertical", 1, 3, 2, 3))
sketch9.addConstraint(Sketcher.Constraint("Diameter", 0, Q("8 mm")))
sketch9.addConstraint(Sketcher.Constraint("DistanceX", 0, 3, -1, 1, Q("40 mm")))
sketch9.addConstraint(Sketcher.Constraint("DistanceY", 2, 3, 1, 3, Q("100 mm")))
sketch9.addConstraint(Sketcher.Constraint("DistanceY", -1, 1, 0, 3, Q("56.392373 mm")))
pocket3 = doc.addObject("PartDesign::Pocket", "Pocket002")
body.addObject(pocket3)
pocket3.Profile = sketch9
pocket3.Type = "ThroughAll"

sketch10 = doc.addObject("Sketcher::SketchObject", "Sketch009")
body.addObject(sketch10)
sketch10.AttachmentSupport = (doc.XY_Plane, [""])
sketch10.MapMode = "FlatFace"
sketch10.addGeometry(Part.Circle(Vector(-64, 39.4, 0), Vector(0, 0, 1), 2.8), False)
sketch10.addGeometry(Part.Circle(Vector(-36, 39.4, 0), Vector(0, 0, 1), 2.8), False)
sketch10.addGeometry(Part.Circle(Vector(-36, 13.4, 0), Vector(0, 0, 1), 2.8), False)
sketch10.addGeometry(Part.Circle(Vector(-64, 13.4, 0), Vector(0, 0, 1), 2.8), False)
sketch10.addGeometry(Part.Circle(Vector(36, 39.4, 0), Vector(0, 0, 1), 2.8), False)
sketch10.addGeometry(Part.Circle(Vector(64, 39.4, 0), Vector(0, 0, 1), 2.8), False)
sketch10.addGeometry(Part.Circle(Vector(36, 13.4, 0), Vector(0, 0, 1), 2.8), False)
sketch10.addGeometry(Part.Circle(Vector(64, 13.4, 0), Vector(0, 0, 1), 2.8), False)
sketch10.addConstraint(Sketcher.Constraint("Equal", 0, 1))
sketch10.addConstraint(Sketcher.Constraint("Equal", 1, 2))
sketch10.addConstraint(Sketcher.Constraint("Equal", 2, 3))
sketch10.addConstraint(Sketcher.Constraint("Equal", 3, 4))
sketch10.addConstraint(Sketcher.Constraint("Equal", 4, 5))
sketch10.addConstraint(Sketcher.Constraint("Equal", 5, 6))
sketch10.addConstraint(Sketcher.Constraint("Equal", 6, 7))
sketch10.addConstraint(Sketcher.Constraint("Symmetric", 1, 3, 4, 3, -2))
sketch10.addConstraint(Sketcher.Constraint("Symmetric", 0, 3, 5, 3, -2))
sketch10.addConstraint(Sketcher.Constraint("Horizontal", 0, 3, 1, 3))
sketch10.addConstraint(Sketcher.Constraint("Horizontal", 2, 3, 3, 3))
sketch10.addConstraint(Sketcher.Constraint("Horizontal", 3, 3, 7, 3))
sketch10.addConstraint(Sketcher.Constraint("Diameter", 0, Q("5.5 mm")))
sketch10.addConstraint(Sketcher.Constraint("DistanceX", 0, 3, -1, 1, Q("64 mm")))
sketch10.addConstraint(Sketcher.Constraint("DistanceX", 1, 3, -1, 1, Q("36 mm")))
sketch10.addConstraint(Sketcher.Constraint("DistanceY", 2, 3, 1, 3, Q("26 mm")))
sketch10.addConstraint(Sketcher.Constraint("DistanceX", 3, 3, 2, 3, Q("28 mm")))
sketch10.addConstraint(Sketcher.Constraint("DistanceX", 6, 3, 7, 3, Q("28 mm")))
sketch10.addConstraint(Sketcher.Constraint("DistanceY", -1, 1, 6, 3, Q("13.392401 mm")))
sketch10.addConstraint(Sketcher.Constraint("DistanceX", 2, 3, -1, 1, Q("36.00049 mm")))
sketch10.addConstraint(Sketcher.Constraint("DistanceY", 6, 3, 4, 3, Q("25.999972 mm")))
sketch10.addConstraint(Sketcher.Constraint("DistanceX", -1, 1, 6, 3, Q("36.038365 mm")))
pocket4 = doc.addObject("PartDesign::Pocket", "Pocket003")
body.addObject(pocket4)
pocket4.Profile = sketch10
pocket4.Type = "ThroughAll"

sketch11 = doc.addObject("Sketcher::SketchObject", "Sketch010")
body.addObject(sketch11)
sketch11.AttachmentSupport = (doc.XY_Plane, [""])
sketch11.MapMode = "FlatFace"
sketch11.AttachmentOffset = App.Placement(Vector(0, 0, -4), App.Rotation())
sketch11.addGeometry(Part.LineSegment(Vector(74, -33, 0), Vector(74, -54, 0)), False)
sketch11.addGeometry(Part.LineSegment(Vector(74, -54, 0), Vector(-74, -54, 0)), False)
sketch11.addGeometry(Part.LineSegment(Vector(-74, -54, 0), Vector(-74, -33, 0)), False)
sketch11.addGeometry(Part.LineSegment(Vector(-74, -33, 0), Vector(74, -33, 0)), False)
sketch11.addGeometry(Part.LineSegment(Vector(74, 66, 0), Vector(74, 46, 0)), False)
sketch11.addGeometry(Part.LineSegment(Vector(74, 46, 0), Vector(-74, 46, 0)), False)
sketch11.addGeometry(Part.LineSegment(Vector(-74, 46, 0), Vector(-74, 66, 0)), False)
sketch11.addGeometry(Part.LineSegment(Vector(-74, 66, 0), Vector(74, 66, 0)), False)
sketch11.addConstraint(Sketcher.Constraint("Coincident", 0, 2, 1, 1))
sketch11.addConstraint(Sketcher.Constraint("Coincident", 1, 2, 2, 1))
sketch11.addConstraint(Sketcher.Constraint("Coincident", 2, 2, 3, 1))
sketch11.addConstraint(Sketcher.Constraint("Coincident", 3, 2, 0, 1))
sketch11.addConstraint(Sketcher.Constraint("Coincident", 4, 2, 5, 1))
sketch11.addConstraint(Sketcher.Constraint("Coincident", 5, 2, 6, 1))
sketch11.addConstraint(Sketcher.Constraint("Coincident", 6, 2, 7, 1))
sketch11.addConstraint(Sketcher.Constraint("Coincident", 7, 2, 4, 1))
sketch11.addConstraint(Sketcher.Constraint("Vertical", 0))
sketch11.addConstraint(Sketcher.Constraint("Horizontal", 1))
sketch11.addConstraint(Sketcher.Constraint("Vertical", 2))
sketch11.addConstraint(Sketcher.Constraint("Horizontal", 3))
sketch11.addConstraint(Sketcher.Constraint("Vertical", 4))
sketch11.addConstraint(Sketcher.Constraint("Horizontal", 5))
sketch11.addConstraint(Sketcher.Constraint("Vertical", 6))
sketch11.addConstraint(Sketcher.Constraint("Horizontal", 7))
sketch11.addConstraint(Sketcher.Constraint("Vertical", 3, 2, 4, 2))
sketch11.addConstraint(Sketcher.Constraint("Vertical", 2, 2, 5, 2))
sketch11.addConstraint(Sketcher.Constraint("Equal", 2, 4))
sketch11.addConstraint(Sketcher.Constraint("DistanceX", 1, 2, 1, 1, Q("148 mm")))
sketch11.addConstraint(Sketcher.Constraint("DistanceY", 0, 2, 0, 1, Q("20.5 mm")))
sketch11.addConstraint(Sketcher.Constraint("DistanceX", -1, 1, 0, 2, Q("74 mm")))
sketch11.addConstraint(Sketcher.Constraint("DistanceY", 3, 2, 4, 2, Q("79 mm")))
sketch11.addConstraint(Sketcher.Constraint("DistanceY", 0, 2, -1, 1, Q("53.607627 mm")))
pocket5 = doc.addObject("PartDesign::Pocket", "Pocket004")
body.addObject(pocket5)
pocket5.Profile = sketch11
pocket5.Length = 4
pocket5.Reversed = True

sketch12 = doc.addObject("Sketcher::SketchObject", "Sketch011")
body.addObject(sketch12)
sketch12.AttachmentSupport = (doc.XY_Plane, [""])
sketch12.MapMode = "FlatFace"
sketch12.AttachmentOffset = App.Placement(Vector(0, 0, -4), App.Rotation())
sketch12.addGeometry(Part.LineSegment(Vector(74, 45.9, 0), Vector(74, -33.1, 0)), False)
sketch12.addGeometry(Part.LineSegment(Vector(74, -33.1, 0), Vector(70, -33.1, 0)), False)
sketch12.addGeometry(Part.LineSegment(Vector(70, -33.1, 0), Vector(70, 45.9, 0)), False)
sketch12.addGeometry(Part.LineSegment(Vector(70, 45.9, 0), Vector(74, 45.9, 0)), False)
sketch12.addGeometry(Part.LineSegment(Vector(30, 45.9, 0), Vector(30, -33.1, 0)), False)
sketch12.addGeometry(Part.LineSegment(Vector(30, -33.1, 0), Vector(20, -33.1, 0)), False)
sketch12.addGeometry(Part.LineSegment(Vector(20, -33.1, 0), Vector(20, 45.9, 0)), False)
sketch12.addGeometry(Part.LineSegment(Vector(20, 45.9, 0), Vector(30, 45.9, 0)), False)
sketch12.addGeometry(Part.LineSegment(Vector(-20, 45.9, 0), Vector(-20, -33.1, 0)), False)
sketch12.addGeometry(Part.LineSegment(Vector(-20, -33.1, 0), Vector(-30, -33.1, 0)), False)
sketch12.addGeometry(Part.LineSegment(Vector(-30, -33.1, 0), Vector(-30, 45.9, 0)), False)
sketch12.addGeometry(Part.LineSegment(Vector(-30, 45.9, 0), Vector(-20, 45.9, 0)), False)
sketch12.addGeometry(Part.LineSegment(Vector(-70, 45.9, 0), Vector(-70, -33.1, 0)), False)
sketch12.addGeometry(Part.LineSegment(Vector(-70, -33.1, 0), Vector(-74, -33.1, 0)), False)
sketch12.addGeometry(Part.LineSegment(Vector(-74, -33.1, 0), Vector(-74, 45.9, 0)), False)
sketch12.addGeometry(Part.LineSegment(Vector(-74, 45.9, 0), Vector(-70, 45.9, 0)), False)
sketch12.addConstraint(Sketcher.Constraint("Coincident", 0, 2, 1, 1))
sketch12.addConstraint(Sketcher.Constraint("Coincident", 1, 2, 2, 1))
sketch12.addConstraint(Sketcher.Constraint("Coincident", 2, 2, 3, 1))
sketch12.addConstraint(Sketcher.Constraint("Coincident", 3, 2, 0, 1))
sketch12.addConstraint(Sketcher.Constraint("Coincident", 4, 2, 5, 1))
sketch12.addConstraint(Sketcher.Constraint("Coincident", 5, 2, 6, 1))
sketch12.addConstraint(Sketcher.Constraint("Coincident", 6, 2, 7, 1))
sketch12.addConstraint(Sketcher.Constraint("Coincident", 7, 2, 4, 1))
sketch12.addConstraint(Sketcher.Constraint("Coincident", 8, 2, 9, 1))
sketch12.addConstraint(Sketcher.Constraint("Coincident", 9, 2, 10, 1))
sketch12.addConstraint(Sketcher.Constraint("Coincident", 10, 2, 11, 1))
sketch12.addConstraint(Sketcher.Constraint("Coincident", 11, 2, 8, 1))
sketch12.addConstraint(Sketcher.Constraint("Coincident", 12, 2, 13, 1))
sketch12.addConstraint(Sketcher.Constraint("Coincident", 13, 2, 14, 1))
sketch12.addConstraint(Sketcher.Constraint("Coincident", 14, 2, 15, 1))
sketch12.addConstraint(Sketcher.Constraint("Coincident", 15, 2, 12, 1))
sketch12.addConstraint(Sketcher.Constraint("Vertical", 0))
sketch12.addConstraint(Sketcher.Constraint("Horizontal", 1))
sketch12.addConstraint(Sketcher.Constraint("Vertical", 2))
sketch12.addConstraint(Sketcher.Constraint("Horizontal", 3))
sketch12.addConstraint(Sketcher.Constraint("Vertical", 4))
sketch12.addConstraint(Sketcher.Constraint("Horizontal", 5))
sketch12.addConstraint(Sketcher.Constraint("Vertical", 6))
sketch12.addConstraint(Sketcher.Constraint("Horizontal", 7))
sketch12.addConstraint(Sketcher.Constraint("Vertical", 8))
sketch12.addConstraint(Sketcher.Constraint("Horizontal", 9))
sketch12.addConstraint(Sketcher.Constraint("Vertical", 10))
sketch12.addConstraint(Sketcher.Constraint("Horizontal", 11))
sketch12.addConstraint(Sketcher.Constraint("Vertical", 12))
sketch12.addConstraint(Sketcher.Constraint("Horizontal", 13))
sketch12.addConstraint(Sketcher.Constraint("Vertical", 14))
sketch12.addConstraint(Sketcher.Constraint("Horizontal", 15))
sketch12.addConstraint(Sketcher.Constraint("Symmetric", 5, 2, 8, 2, -2))
sketch12.addConstraint(Sketcher.Constraint("Symmetric", 7, 2, 10, 2, -2))
sketch12.addConstraint(Sketcher.Constraint("Symmetric", 1, 2, 12, 2, -2))
sketch12.addConstraint(Sketcher.Constraint("Symmetric", 3, 2, 14, 2, -2))
sketch12.addConstraint(Sketcher.Constraint("Horizontal", 1, 2, 4, 2))
sketch12.addConstraint(Sketcher.Constraint("Horizontal", 3, 2, 6, 2))
sketch12.addConstraint(Sketcher.Constraint("DistanceX", 1, 2, 1, 1, Q("4 mm")))
sketch12.addConstraint(Sketcher.Constraint("DistanceX", 5, 2, 5, 1, Q("10 mm")))
sketch12.addConstraint(Sketcher.Constraint("DistanceY", 0, 2, 0, 1, Q("79 mm")))
sketch12.addConstraint(Sketcher.Constraint("DistanceX", -1, 1, 0, 2, Q("74 mm")))
sketch12.addConstraint(Sketcher.Constraint("DistanceX", -1, 1, 4, 2, Q("30 mm")))
sketch12.addConstraint(Sketcher.Constraint("DistanceY", 0, 2, -1, 1, Q("33.107627 mm")))
pad5 = doc.addObject("PartDesign::Pad", "Pad004")
body.addObject(pad5)
pad5.Profile = sketch12
pad5.Length = 3
pad5.Reversed = True

doc.recompute()
